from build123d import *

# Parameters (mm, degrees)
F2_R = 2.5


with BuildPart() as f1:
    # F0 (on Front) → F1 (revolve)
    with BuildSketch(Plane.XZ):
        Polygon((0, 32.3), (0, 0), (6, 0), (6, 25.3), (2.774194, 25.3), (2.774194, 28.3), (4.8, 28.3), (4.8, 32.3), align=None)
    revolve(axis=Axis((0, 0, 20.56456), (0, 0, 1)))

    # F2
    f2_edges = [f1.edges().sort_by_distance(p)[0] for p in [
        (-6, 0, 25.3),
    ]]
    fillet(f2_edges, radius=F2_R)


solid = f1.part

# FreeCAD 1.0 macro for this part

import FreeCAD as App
import Part
import Sketcher


def edges_at(feature, points):
    """Names of the edges that pass closest to the given points."""
    edges = feature.Shape.Edges
    near = lambda p: min(range(len(edges)), key=lambda i: edges[i].distToShape(Part.Vertex(*p))[0])
    return sorted({f"Edge{near(p) + 1}" for p in points})

doc = App.newDocument("Part")
body = doc.addObject("PartDesign::Body", "Body")

# Sketch on XZ plane
sketch1 = body.newObject("Sketcher::SketchObject", "Sketch")
sketch1.AttachmentSupport = (doc.getObject("XZ_Plane"), [""])
sketch1.MapMode = "FlatFace"
sketch1.addGeometry(Part.LineSegment(App.Vector(0, 32.3, 0), App.Vector(0, 0, 0)), False)
sketch1.addGeometry(Part.LineSegment(App.Vector(0, 0, 0), App.Vector(6, 0, 0)), False)
sketch1.addGeometry(Part.LineSegment(App.Vector(6, 0, 0), App.Vector(6, 25.3, 0)), False)
sketch1.addGeometry(Part.LineSegment(App.Vector(6, 25.3, 0), App.Vector(2.774194, 25.3, 0)), False)
sketch1.addGeometry(Part.LineSegment(App.Vector(2.774194, 25.3, 0), App.Vector(2.774194, 28.3, 0)), False)
sketch1.addGeometry(Part.LineSegment(App.Vector(2.774194, 28.3, 0), App.Vector(4.8, 28.3, 0)), False)
sketch1.addGeometry(Part.LineSegment(App.Vector(4.8, 28.3, 0), App.Vector(4.8, 32.3, 0)), False)
sketch1.addGeometry(Part.LineSegment(App.Vector(4.8, 32.3, 0), App.Vector(0, 32.3, 0)), False)
sketch1.addConstraint(Sketcher.Constraint("Coincident", 0, 2, 1, 1))
sketch1.addConstraint(Sketcher.Constraint("Coincident", 1, 2, 2, 1))
sketch1.addConstraint(Sketcher.Constraint("Coincident", 2, 2, 3, 1))
sketch1.addConstraint(Sketcher.Constraint("Coincident", 3, 2, 4, 1))
sketch1.addConstraint(Sketcher.Constraint("Coincident", 4, 2, 5, 1))
sketch1.addConstraint(Sketcher.Constraint("Coincident", 5, 2, 6, 1))
sketch1.addConstraint(Sketcher.Constraint("Coincident", 6, 2, 7, 1))
sketch1.addConstraint(Sketcher.Constraint("Coincident", 7, 2, 0, 1))
sketch1.addConstraint(Sketcher.Constraint("Vertical", 0))
sketch1.addConstraint(Sketcher.Constraint("Horizontal", 1))
sketch1.addConstraint(Sketcher.Constraint("Vertical", 2))
sketch1.addConstraint(Sketcher.Constraint("Horizontal", 3))
sketch1.addConstraint(Sketcher.Constraint("Vertical", 4))
sketch1.addConstraint(Sketcher.Constraint("Horizontal", 5))
sketch1.addConstraint(Sketcher.Constraint("Vertical", 6))
sketch1.addConstraint(Sketcher.Constraint("Horizontal", 7))
sketch1.addConstraint(Sketcher.Constraint("Coincident", 0, 2, -1, 1))
sketch1.addConstraint(Sketcher.Constraint("DistanceX", 1, 1, 1, 2, 6.0))
sketch1.addConstraint(Sketcher.Constraint("DistanceY", 4, 1, 4, 2, 3.0))
sketch1.addConstraint(Sketcher.Constraint("DistanceY", 6, 1, 6, 2, 4.0))
sketch1.addConstraint(Sketcher.Constraint("DistanceX", 7, 2, 7, 1, 4.8))
sketch1.addConstraint(Sketcher.Constraint("DistanceY", 0, 2, 0, 1, 32.3))
sketch1.addConstraint(Sketcher.Constraint("DistanceX", 3, 2, 3, 1, 3.225806))
revolution = body.newObject("PartDesign::Revolution", "Revolution")
revolution.Profile = sketch1
revolution.ReferenceAxis = (sketch1, ["V_Axis"])
revolution.Angle = 360
doc.recompute()

fillet = body.newObject("PartDesign::Fillet", "Fillet")
fillet.Base = (revolution, edges_at(revolution, [(-6, 0, 25.3)]))
fillet.Radius = 2.5

doc.recompute()
